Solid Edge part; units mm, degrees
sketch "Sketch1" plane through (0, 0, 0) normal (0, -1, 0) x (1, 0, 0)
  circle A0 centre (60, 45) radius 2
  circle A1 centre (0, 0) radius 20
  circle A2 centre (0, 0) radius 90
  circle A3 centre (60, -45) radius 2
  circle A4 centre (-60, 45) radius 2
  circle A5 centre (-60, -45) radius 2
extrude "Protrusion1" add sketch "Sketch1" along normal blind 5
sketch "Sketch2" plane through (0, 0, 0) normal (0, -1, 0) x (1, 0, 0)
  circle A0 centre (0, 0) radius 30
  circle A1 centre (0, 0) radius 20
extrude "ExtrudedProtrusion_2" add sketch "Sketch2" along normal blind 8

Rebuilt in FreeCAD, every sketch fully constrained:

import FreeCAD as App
import Part
import Sketcher

doc = App.newDocument("Part")
body = doc.addObject("PartDesign::Body", "Body")

sketch1 = doc.addObject("Sketcher::SketchObject", "Sketch")
body.addObject(sketch1)
sketch1.AttachmentSupport = (doc.XZ_Plane, [""])
sketch1.MapMode = "FlatFace"
sketch1.addGeometry(Part.Circle(App.Vector(0, 0, 0), App.Vector(0, 0, 1), 90), False)
sketch1.addGeometry(Part.Circle(App.Vector(-60, -45, 0), App.Vector(0, 0, 1), 2), False)
sketch1.addGeometry(Part.Circle(App.Vector(60, -45, 0), App.Vector(0, 0, 1), 2), False)
sketch1.addGeometry(Part.Circle(App.Vector(-60, 45, 0), App.Vector(0, 0, 1), 2), False)
sketch1.addGeometry(Part.Circle(App.Vector(0, 0, 0), App.Vector(0, 0, 1), 20), False)
sketch1.addGeometry(Part.Circle(App.Vector(60, 45, 0), App.Vector(0, 0, 1), 2), False)
sketch1.addConstraint(Sketcher.Constraint("Coincident", 0, 3, -1, 1))
sketch1.addConstraint(Sketcher.Constraint("Coincident", 4, 3, -1, 1))
sketch1.addConstraint(Sketcher.Constraint("Equal", 1, 2))
sketch1.addConstraint(Sketcher.Constraint("Equal", 2, 3))
sketch1.addConstraint(Sketcher.Constraint("Equal", 3, 5))
sketch1.addConstraint(Sketcher.Constraint("Symmetric", 2, 3, 3, 3, -1, 1))
sketch1.addConstraint(Sketcher.Constraint("Symmetric", 1, 3, 5, 3, -1, 1))
sketch1.addConstraint(Sketcher.Constraint("Symmetric", 1, 3, 2, 3, -2))
sketch1.addConstraint(Sketcher.Constraint("Diameter", 0, 180.0))
sketch1.addConstraint(Sketcher.Constraint("Diameter", 1, 4.0))
sketch1.addConstraint(Sketcher.Constraint("Diameter", 4, 40.0))
sketch1.addConstraint(Sketcher.Constraint("DistanceX", 1, 3, -1, 1, 60.0))
sketch1.addConstraint(Sketcher.Constraint("DistanceY", 1, 3, -1, 1, 45.0))
pad1 = doc.addObject("PartDesign::Pad", "Pad")
body.addObject(pad1)
pad1.Profile = sketch1
pad1.Length = 5

sketch2 = doc.addObject("Sketcher::SketchObject", "Sketch001")
body.addObject(sketch2)
sketch2.AttachmentSupport = (doc.XZ_Plane, [""])
sketch2.MapMode = "FlatFace"
sketch2.addGeometry(Part.Circle(App.Vector(0, 0, 0), App.Vector(0, 0, 1), 30), False)
sketch2.addGeometry(Part.Circle(App.Vector(0, 0, 0), App.Vector(0, 0, 1), 20), False)
sketch2.addConstraint(Sketcher.Constraint("Coincident", 0, 3, -1, 1))
sketch2.addConstraint(Sketcher.Constraint("Coincident", 1, 3, -1, 1))
sketch2.addConstraint(Sketcher.Constraint("Diameter", 0, 60.0))
sketch2.addConstraint(Sketcher.Constraint("Diameter", 1, 40.0))
pad2 = doc.addObject("PartDesign::Pad", "Pad001")
body.addObject(pad2)
pad2.Profile = sketch2
pad2.Length = 8

doc.recompute()
